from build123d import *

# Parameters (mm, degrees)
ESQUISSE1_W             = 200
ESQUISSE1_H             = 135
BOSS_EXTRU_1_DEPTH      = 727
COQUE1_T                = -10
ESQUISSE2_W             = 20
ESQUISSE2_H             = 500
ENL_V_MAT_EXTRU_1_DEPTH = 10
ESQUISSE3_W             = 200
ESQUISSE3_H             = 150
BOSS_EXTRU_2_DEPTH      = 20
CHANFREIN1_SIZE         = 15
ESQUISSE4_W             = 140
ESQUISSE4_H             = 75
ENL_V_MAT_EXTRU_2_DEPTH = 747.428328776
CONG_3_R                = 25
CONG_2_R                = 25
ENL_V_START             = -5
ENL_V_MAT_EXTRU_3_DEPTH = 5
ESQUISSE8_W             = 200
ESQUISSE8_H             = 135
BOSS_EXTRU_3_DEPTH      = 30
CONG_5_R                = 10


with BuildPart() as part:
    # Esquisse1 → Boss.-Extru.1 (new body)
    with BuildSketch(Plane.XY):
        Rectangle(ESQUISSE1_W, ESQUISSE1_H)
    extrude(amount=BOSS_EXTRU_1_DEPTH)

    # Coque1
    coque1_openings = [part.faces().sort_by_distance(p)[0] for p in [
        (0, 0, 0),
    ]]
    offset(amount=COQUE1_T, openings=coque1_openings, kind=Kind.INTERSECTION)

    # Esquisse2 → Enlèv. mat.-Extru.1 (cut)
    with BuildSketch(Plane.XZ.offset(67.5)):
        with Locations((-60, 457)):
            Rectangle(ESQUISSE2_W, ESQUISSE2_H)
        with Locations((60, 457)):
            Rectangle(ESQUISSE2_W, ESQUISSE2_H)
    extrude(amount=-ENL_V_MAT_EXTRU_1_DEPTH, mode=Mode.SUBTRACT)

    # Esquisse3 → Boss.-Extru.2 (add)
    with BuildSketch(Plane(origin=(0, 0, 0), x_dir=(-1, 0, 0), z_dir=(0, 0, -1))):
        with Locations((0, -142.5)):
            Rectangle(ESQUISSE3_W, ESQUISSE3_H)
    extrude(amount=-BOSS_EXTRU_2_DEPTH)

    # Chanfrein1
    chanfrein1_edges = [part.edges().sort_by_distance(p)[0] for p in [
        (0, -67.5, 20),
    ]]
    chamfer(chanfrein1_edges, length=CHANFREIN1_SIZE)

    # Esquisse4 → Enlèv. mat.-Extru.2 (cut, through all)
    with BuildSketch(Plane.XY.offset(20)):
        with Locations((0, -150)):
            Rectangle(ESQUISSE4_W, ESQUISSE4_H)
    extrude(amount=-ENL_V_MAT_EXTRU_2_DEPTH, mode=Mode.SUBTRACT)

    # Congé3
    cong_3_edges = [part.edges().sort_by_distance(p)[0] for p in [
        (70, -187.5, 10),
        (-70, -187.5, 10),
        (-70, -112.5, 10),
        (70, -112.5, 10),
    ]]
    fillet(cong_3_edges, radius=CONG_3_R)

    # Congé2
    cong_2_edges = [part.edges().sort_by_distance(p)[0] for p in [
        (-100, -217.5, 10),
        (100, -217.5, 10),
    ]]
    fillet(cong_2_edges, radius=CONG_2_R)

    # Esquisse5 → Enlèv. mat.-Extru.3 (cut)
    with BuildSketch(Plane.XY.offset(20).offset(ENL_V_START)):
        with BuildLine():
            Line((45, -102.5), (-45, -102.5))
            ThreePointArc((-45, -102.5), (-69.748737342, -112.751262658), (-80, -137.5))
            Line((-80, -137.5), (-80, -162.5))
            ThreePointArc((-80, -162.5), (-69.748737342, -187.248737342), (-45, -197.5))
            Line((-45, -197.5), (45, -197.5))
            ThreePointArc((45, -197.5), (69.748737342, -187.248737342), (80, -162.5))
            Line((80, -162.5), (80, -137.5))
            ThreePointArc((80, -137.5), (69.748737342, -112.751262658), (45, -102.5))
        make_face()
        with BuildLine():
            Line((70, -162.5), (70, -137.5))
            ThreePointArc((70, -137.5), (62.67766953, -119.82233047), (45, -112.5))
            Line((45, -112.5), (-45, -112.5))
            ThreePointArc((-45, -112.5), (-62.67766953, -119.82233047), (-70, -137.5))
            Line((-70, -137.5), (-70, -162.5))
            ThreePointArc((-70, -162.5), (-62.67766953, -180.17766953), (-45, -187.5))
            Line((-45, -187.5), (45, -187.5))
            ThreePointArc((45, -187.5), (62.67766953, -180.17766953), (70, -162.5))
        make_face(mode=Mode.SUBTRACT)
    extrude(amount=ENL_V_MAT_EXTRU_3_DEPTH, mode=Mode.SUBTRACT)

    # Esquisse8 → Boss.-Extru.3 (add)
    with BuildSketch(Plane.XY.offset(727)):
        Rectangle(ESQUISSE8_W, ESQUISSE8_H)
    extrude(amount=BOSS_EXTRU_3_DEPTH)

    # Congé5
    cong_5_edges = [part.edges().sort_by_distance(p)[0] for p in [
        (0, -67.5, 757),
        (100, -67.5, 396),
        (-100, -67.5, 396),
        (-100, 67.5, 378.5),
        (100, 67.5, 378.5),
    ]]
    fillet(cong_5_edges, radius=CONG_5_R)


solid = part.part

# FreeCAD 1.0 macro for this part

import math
import FreeCAD as App
import Part
import Sketcher


def edges_at(feature, points):
    """Names of the edges that pass closest to the given points."""
    edges = feature.Shape.Edges
    near = lambda p: min(range(len(edges)), key=lambda i: edges[i].distToShape(Part.Vertex(*p))[0])
    return sorted({f"Edge{near(p) + 1}" for p in points})


def faces_at(feature, points):
    """Names of the faces that lie closest to the given points."""
    faces = feature.Shape.Faces
    near = lambda p: min(range(len(faces)), key=lambda i: faces[i].distToShape(Part.Vertex(*p))[0])
    return sorted({f"Face{near(p) + 1}" for p in points})

doc = App.newDocument("Part")
body = doc.addObject("PartDesign::Body", "Body")

sketch1 = doc.addObject("Sketcher::SketchObject", "Sketch")
body.addObject(sketch1)
sketch1.AttachmentSupport = (doc.XY_Plane, [""])
sketch1.MapMode = "FlatFace"
sketch1.addGeometry(Part.LineSegment(App.Vector(-100, 67.5, 0), App.Vector(-100, -67.5, 0)), False)
sketch1.addGeometry(Part.LineSegment(App.Vector(-100, -67.5, 0), App.Vector(100, -67.5, 0)), False)
sketch1.addGeometry(Part.LineSegment(App.Vector(100, -67.5, 0), App.Vector(100, 67.5, 0)), False)
sketch1.addGeometry(Part.LineSegment(App.Vector(100, 67.5, 0), App.Vector(-100, 67.5, 0)), False)
sketch1.addConstraint(Sketcher.Constraint("Coincident", 0, 2, 1, 1))
sketch1.addConstraint(Sketcher.Constraint("Coincident", 1, 2, 2, 1))
sketch1.addConstraint(Sketcher.Constraint("Coincident", 2, 2, 3, 1))
sketch1.addConstraint(Sketcher.Constraint("Coincident", 3, 2, 0, 1))
sketch1.addConstraint(Sketcher.Constraint("Vertical", 0))
sketch1.addConstraint(Sketcher.Constraint("Horizontal", 1))
sketch1.addConstraint(Sketcher.Constraint("Vertical", 2))
sketch1.addConstraint(Sketcher.Constraint("Horizontal", 3))
sketch1.addConstraint(Sketcher.Constraint("Symmetric", 0, 2, 2, 2, -1, 1))
sketch1.addConstraint(Sketcher.Constraint("DistanceX", 1, 1, 1, 2, 200.0))
sketch1.addConstraint(Sketcher.Constraint("DistanceY", 0, 2, 0, 1, 135.0))
pad1 = doc.addObject("PartDesign::Pad", "Pad")
body.addObject(pad1)
pad1.Profile = sketch1
pad1.Length = 727
doc.recompute()

thickness = doc.addObject("PartDesign::Thickness", "Thickness")
body.addObject(thickness)
thickness.Base = (pad1, faces_at(pad1, [(0, 0, 0)]))
thickness.Value = 10
thickness.Reversed = True
thickness.Join = "Intersection"

sketch2 = doc.addObject("Sketcher::SketchObject", "Sketch001")
body.addObject(sketch2)
sketch2.AttachmentSupport = (doc.XZ_Plane, [""])
sketch2.MapMode = "FlatFace"
sketch2.AttachmentOffset = App.Placement(App.Vector(0, 0, 67.5), App.Rotation())
sketch2.addGeometry(Part.LineSegment(App.Vector(-70, 707, 0), App.Vector(-70, 207, 0)), False)
sketch2.addGeometry(Part.LineSegment(App.Vector(-70, 207, 0), App.Vector(-50, 207, 0)), False)
sketch2.addGeometry(Part.LineSegment(App.Vector(-50, 207, 0), App.Vector(-50, 707, 0)), False)
sketch2.addGeometry(Part.LineSegment(App.Vector(-50, 707, 0), App.Vector(-70, 707, 0)), False)
sketch2.addGeometry(Part.LineSegment(App.Vector(50, 707, 0), App.Vector(50, 207, 0)), False)
sketch2.addGeometry(Part.LineSegment(App.Vector(50, 207, 0), App.Vector(70, 207, 0)), False)
sketch2.addGeometry(Part.LineSegment(App.Vector(70, 207, 0), App.Vector(70, 707, 0)), False)
sketch2.addGeometry(Part.LineSegment(App.Vector(70, 707, 0), App.Vector(50, 707, 0)), False)
sketch2.addConstraint(Sketcher.Constraint("Coincident", 0, 2, 1, 1))
sketch2.addConstraint(Sketcher.Constraint("Coincident", 1, 2, 2, 1))
sketch2.addConstraint(Sketcher.Constraint("Coincident", 2, 2, 3, 1))
sketch2.addConstraint(Sketcher.Constraint("Coincident", 3, 2, 0, 1))
sketch2.addConstraint(Sketcher.Constraint("Coincident", 4, 2, 5, 1))
sketch2.addConstraint(Sketcher.Constraint("Coincident", 5, 2, 6, 1))
sketch2.addConstraint(Sketcher.Constraint("Coincident", 6, 2, 7, 1))
sketch2.addConstraint(Sketcher.Constraint("Coincident", 7, 2, 4, 1))
sketch2.addConstraint(Sketcher.Constraint("Vertical", 0))
sketch2.addConstraint(Sketcher.Constraint("Horizontal", 1))
sketch2.addConstraint(Sketcher.Constraint("Vertical", 2))
sketch2.addConstraint(Sketcher.Constraint("Horizontal", 3))
sketch2.addConstraint(Sketcher.Constraint("Vertical", 4))
sketch2.addConstraint(Sketcher.Constraint("Horizontal", 5))
sketch2.addConstraint(Sketcher.Constraint("Vertical", 6))
sketch2.addConstraint(Sketcher.Constraint("Horizontal", 7))
sketch2.addConstraint(Sketcher.Constraint("Symmetric", 1, 2, 4, 2, -2))
sketch2.addConstraint(Sketcher.Constraint("Symmetric", 3, 2, 6, 2, -2))
sketch2.addConstraint(Sketcher.Constraint("DistanceX", 1, 1, 1, 2, 20.0))
sketch2.addConstraint(Sketcher.Constraint("DistanceY", 0, 2, 0, 1, 500.0))
sketch2.addConstraint(Sketcher.Constraint("DistanceX", 0, 2, -1, 1, 70.0))
sketch2.addConstraint(Sketcher.Constraint("DistanceY", -1, 1, 0, 2, 207.0))
pocket1 = doc.addObject("PartDesign::Pocket", "Pocket")
body.addObject(pocket1)
pocket1.Profile = sketch2
pocket1.Length = 10

sketch3 = doc.addObject("Sketcher::SketchObject", "Sketch002")
body.addObject(sketch3)
sketch3.AttachmentSupport = (doc.XY_Plane, [""])
sketch3.MapMode = "FlatFace"
sketch3.addGeometry(Part.LineSegment(App.Vector(100, -67.5, 0), App.Vector(100, -217.5, 0)), False)
sketch3.addGeometry(Part.LineSegment(App.Vector(100, -217.5, 0), App.Vector(-100, -217.5, 0)), False)
sketch3.addGeometry(Part.LineSegment(App.Vector(-100, -217.5, 0), App.Vector(-100, -67.5, 0)), False)
sketch3.addGeometry(Part.LineSegment(App.Vector(-100, -67.5, 0), App.Vector(100, -67.5, 0)), False)
sketch3.addConstraint(Sketcher.Constraint("Coincident", 0, 2, 1, 1))
sketch3.addConstraint(Sketcher.Constraint("Coincident", 1, 2, 2, 1))
sketch3.addConstraint(Sketcher.Constraint("Coincident", 2, 2, 3, 1))
sketch3.addConstraint(Sketcher.Constraint("Coincident", 3, 2, 0, 1))
sketch3.addConstraint(Sketcher.Constraint("Vertical", 0))
sketch3.addConstraint(Sketcher.Constraint("Horizontal", 1))
sketch3.addConstraint(Sketcher.Constraint("Vertical", 2))
sketch3.addConstraint(Sketcher.Constraint("Horizontal", 3))
sketch3.addConstraint(Sketcher.Constraint("DistanceX", 1, 2, 1, 1, 200.0))
sketch3.addConstraint(Sketcher.Constraint("DistanceY", 0, 2, 0, 1, 150.0))
sketch3.addConstraint(Sketcher.Constraint("DistanceX", -1, 1, 0, 2, 100.0))
sketch3.addConstraint(Sketcher.Constraint("DistanceY", 0, 2, -1, 1, 217.5))
pad2 = doc.addObject("PartDesign::Pad", "Pad001")
body.addObject(pad2)
pad2.Profile = sketch3
pad2.Length = 20
doc.recompute()

chamfer = doc.addObject("PartDesign::Chamfer", "Chamfer")
body.addObject(chamfer)
chamfer.Base = (pad2, edges_at(pad2, [(0, -67.5, 20)]))
chamfer.Size = 15

sketch4 = doc.addObject("Sketcher::SketchObject", "Sketch003")
body.addObject(sketch4)
sketch4.AttachmentSupport = (doc.XY_Plane, [""])
sketch4.MapMode = "FlatFace"
sketch4.AttachmentOffset = App.Placement(App.Vector(0, 0, 20), App.Rotation())
sketch4.addGeometry(Part.LineSegment(App.Vector(-70, -112.5, 0), App.Vector(-70, -187.5, 0)), False)
sketch4.addGeometry(Part.LineSegment(App.Vector(-70, -187.5, 0), App.Vector(70, -187.5, 0)), False)
sketch4.addGeometry(Part.LineSegment(App.Vector(70, -187.5, 0), App.Vector(70, -112.5, 0)), False)
sketch4.addGeometry(Part.LineSegment(App.Vector(70, -112.5, 0), App.Vector(-70, -112.5, 0)), False)
sketch4.addConstraint(Sketcher.Constraint("Coincident", 0, 2, 1, 1))
sketch4.addConstraint(Sketcher.Constraint("Coincident", 1, 2, 2, 1))
sketch4.addConstraint(Sketcher.Constraint("Coincident", 2, 2, 3, 1))
sketch4.addConstraint(Sketcher.Constraint("Coincident", 3, 2, 0, 1))
sketch4.addConstraint(Sketcher.Constraint("Vertical", 0))
sketch4.addConstraint(Sketcher.Constraint("Horizontal", 1))
sketch4.addConstraint(Sketcher.Constraint("Vertical", 2))
sketch4.addConstraint(Sketcher.Constraint("Horizontal", 3))
sketch4.addConstraint(Sketcher.Constraint("DistanceX", 1, 1, 1, 2, 140.0))
sketch4.addConstraint(Sketcher.Constraint("DistanceY", 0, 2, 0, 1, 75.0))
sketch4.addConstraint(Sketcher.Constraint("DistanceX", 0, 2, -1, 1, 70.0))
sketch4.addConstraint(Sketcher.Constraint("DistanceY", 0, 2, -1, 1, 187.5))
pocket2 = doc.addObject("PartDesign::Pocket", "Pocket001")
body.addObject(pocket2)
pocket2.Profile = sketch4
pocket2.Type = "ThroughAll"
doc.recompute()

fillet = doc.addObject("PartDesign::Fillet", "Fillet")
body.addObject(fillet)
fillet.Base = (pocket2, edges_at(pocket2, [
    (70, -187.5, 10),
    (-70, -187.5, 10),
    (-70, -112.5, 10),
    (70, -112.5, 10),
]))
fillet.Radius = 25
doc.recompute()

fillet2 = doc.addObject("PartDesign::Fillet", "Fillet001")
body.addObject(fillet2)
fillet2.Base = (fillet, edges_at(fillet, [(-100, -217.5, 10), (100, -217.5, 10)]))
fillet2.Radius = 25

sketch5 = doc.addObject("Sketcher::SketchObject", "Sketch004")
body.addObject(sketch5)
sketch5.AttachmentSupport = (doc.XY_Plane, [""])
sketch5.MapMode = "FlatFace"
sketch5.AttachmentOffset = App.Placement(App.Vector(0, 0, 15), App.Rotation())
sketch5.addGeometry(Part.LineSegment(App.Vector(45, -102.5, 0), App.Vector(-45, -102.5, 0)), False)
sketch5.addGeometry(Part.ArcOfCircle(Part.Circle(App.Vector(-45, -137.5, 0), App.Vector(0, 0, 1), 35), math.radians(90), math.radians(180)), False)
sketch5.addGeometry(Part.LineSegment(App.Vector(-80, -137.5, 0), App.Vector(-80, -162.5, 0)), False)
sketch5.addGeometry(Part.ArcOfCircle(Part.Circle(App.Vector(-45, -162.5, 0), App.Vector(0, 0, 1), 35), math.radians(180), math.radians(270)), False)
sketch5.addGeometry(Part.LineSegment(App.Vector(-45, -197.5, 0), App.Vector(45, -197.5, 0)), False)
sketch5.addGeometry(Part.ArcOfCircle(Part.Circle(App.Vector(45, -162.5, 0), App.Vector(0, 0, 1), 35), math.radians(-90), math.radians(0)), False)
sketch5.addGeometry(Part.LineSegment(App.Vector(80, -162.5, 0), App.Vector(80, -137.5, 0)), False)
sketch5.addGeometry(Part.ArcOfCircle(Part.Circle(App.Vector(45, -137.5, 0), App.Vector(0, 0, 1), 35), math.radians(0), math.radians(90)), False)
sketch5.addGeometry(Part.LineSegment(App.Vector(70, -137.5, 0), App.Vector(70, -162.5, 0)), False)
sketch5.addGeometry(Part.ArcOfCircle(Part.Circle(App.Vector(45, -162.5, 0), App.Vector(0, 0, 1), 25), math.radians(-90), math.radians(0)), False)
sketch5.addGeometry(Part.LineSegment(App.Vector(45, -187.5, 0), App.Vector(-45, -187.5, 0)), False)
sketch5.addGeometry(Part.ArcOfCircle(Part.Circle(App.Vector(-45, -162.5, 0), App.Vector(0, 0, 1), 25), math.radians(180), math.radians(270)), False)
sketch5.addGeometry(Part.LineSegment(App.Vector(-70, -162.5, 0), App.Vector(-70, -137.5, 0)), False)
sketch5.addGeometry(Part.ArcOfCircle(Part.Circle(App.Vector(-45, -137.5, 0), App.Vector(0, 0, 1), 25), math.radians(90), math.radians(180)), False)
sketch5.addGeometry(Part.LineSegment(App.Vector(-45, -112.5, 0), App.Vector(45, -112.5, 0)), False)
sketch5.addGeometry(Part.ArcOfCircle(Part.Circle(App.Vector(45, -137.5, 0), App.Vector(0, 0, 1), 25), math.radians(0), math.radians(90)), False)
sketch5.addConstraint(Sketcher.Constraint("Tangent", 0, 2, 1, 1))
sketch5.addConstraint(Sketcher.Constraint("Tangent", 1, 2, 2, 1))
sketch5.addConstraint(Sketcher.Constraint("Tangent", 2, 2, 3, 1))
sketch5.addConstraint(Sketcher.Constraint("Tangent", 3, 2, 4, 1))
sketch5.addConstraint(Sketcher.Constraint("Tangent", 4, 2, 5, 1))
sketch5.addConstraint(Sketcher.Constraint("Tangent", 5, 2, 6, 1))
sketch5.addConstraint(Sketcher.Constraint("Tangent", 6, 2, 7, 1))
sketch5.addConstraint(Sketcher.Constraint("Tangent", 7, 2, 0, 1))
sketch5.addConstraint(Sketcher.Constraint("Tangent", 8, 2, 9, 2))
sketch5.addConstraint(Sketcher.Constraint("Tangent", 9, 1, 10, 1))
sketch5.addConstraint(Sketcher.Constraint("Tangent", 10, 2, 11, 2))
sketch5.addConstraint(Sketcher.Constraint("Tangent", 11, 1, 12, 1))
sketch5.addConstraint(Sketcher.Constraint("Tangent", 12, 2, 13, 2))
sketch5.addConstraint(Sketcher.Constraint("Tangent", 13, 1, 14, 1))
sketch5.addConstraint(Sketcher.Constraint("Tangent", 14, 2, 15, 2))
sketch5.addConstraint(Sketcher.Constraint("Tangent", 15, 1, 8, 1))
sketch5.addConstraint(Sketcher.Constraint("Horizontal", 0))
sketch5.addConstraint(Sketcher.Constraint("Vertical", 2))
sketch5.addConstraint(Sketcher.Constraint("Horizontal", 4))
sketch5.addConstraint(Sketcher.Constraint("Vertical", 6))
sketch5.addConstraint(Sketcher.Constraint("Vertical", 8))
sketch5.addConstraint(Sketcher.Constraint("Horizontal", 10))
sketch5.addConstraint(Sketcher.Constraint("Vertical", 12))
sketch5.addConstraint(Sketcher.Constraint("Horizontal", 14))
sketch5.addConstraint(Sketcher.Constraint("Coincident", 9, 3, 5, 3))
sketch5.addConstraint(Sketcher.Constraint("Coincident", 11, 3, 3, 3))
sketch5.addConstraint(Sketcher.Constraint("Coincident", 13, 3, 1, 3))
sketch5.addConstraint(Sketcher.Constraint("Equal", 1, 3))
sketch5.addConstraint(Sketcher.Constraint("Equal", 3, 5))
sketch5.addConstraint(Sketcher.Constraint("Equal", 5, 7))
sketch5.addConstraint(Sketcher.Constraint("Equal", 13, 15))
sketch5.addConstraint(Sketcher.Constraint("Radius", 1, 35.0))
sketch5.addConstraint(Sketcher.Constraint("Radius", 9, 25.0))
sketch5.addConstraint(Sketcher.Constraint("DistanceX", 0, 2, 0, 1, 90.0))
sketch5.addConstraint(Sketcher.Constraint("DistanceY", 2, 2, 2, 1, 25.0))
sketch5.addConstraint(Sketcher.Constraint("DistanceX", 1, 3, -1, 1, 45.0))
sketch5.addConstraint(Sketcher.Constraint("DistanceY", 1, 3, -1, 1, 137.5))
pocket3 = doc.addObject("PartDesign::Pocket", "Pocket002")
body.addObject(pocket3)
pocket3.Profile = sketch5
pocket3.Length = 5
pocket3.Reversed = True

sketch6 = doc.addObject("Sketcher::SketchObject", "Sketch005")
body.addObject(sketch6)
sketch6.AttachmentSupport = (doc.XY_Plane, [""])
sketch6.MapMode = "FlatFace"
sketch6.AttachmentOffset = App.Placement(App.Vector(0, 0, 727), App.Rotation())
sketch6.addGeometry(Part.LineSegment(App.Vector(-100, 67.5, 0), App.Vector(-100, -67.5, 0)), False)
sketch6.addGeometry(Part.LineSegment(App.Vector(-100, -67.5, 0), App.Vector(100, -67.5, 0)), False)
sketch6.addGeometry(Part.LineSegment(App.Vector(100, -67.5, 0), App.Vector(100, 67.5, 0)), False)
sketch6.addGeometry(Part.LineSegment(App.Vector(100, 67.5, 0), App.Vector(-100, 67.5, 0)), False)
sketch6.addConstraint(Sketcher.Constraint("Coincident", 0, 2, 1, 1))
sketch6.addConstraint(Sketcher.Constraint("Coincident", 1, 2, 2, 1))
sketch6.addConstraint(Sketcher.Constraint("Coincident", 2, 2, 3, 1))
sketch6.addConstraint(Sketcher.Constraint("Coincident", 3, 2, 0, 1))
sketch6.addConstraint(Sketcher.Constraint("Vertical", 0))
sketch6.addConstraint(Sketcher.Constraint("Horizontal", 1))
sketch6.addConstraint(Sketcher.Constraint("Vertical", 2))
sketch6.addConstraint(Sketcher.Constraint("Horizontal", 3))
sketch6.addConstraint(Sketcher.Constraint("Symmetric", 0, 2, 2, 2, -1, 1))
sketch6.addConstraint(Sketcher.Constraint("DistanceX", 1, 1, 1, 2, 200.0))
sketch6.addConstraint(Sketcher.Constraint("DistanceY", 0, 2, 0, 1, 135.0))
pad3 = doc.addObject("PartDesign::Pad", "Pad002")
body.addObject(pad3)
pad3.Profile = sketch6
pad3.Length = 30
doc.recompute()

fillet3 = doc.addObject("PartDesign::Fillet", "Fillet002")
body.addObject(fillet3)
fillet3.Base = (pad3, edges_at(pad3, [
    (0, -67.5, 757),
    (100, -67.5, 396),
    (-100, -67.5, 396),
    (-100, 67.5, 378.5),
    (100, 67.5, 378.5),
]))
fillet3.Radius = 10

doc.recompute()
